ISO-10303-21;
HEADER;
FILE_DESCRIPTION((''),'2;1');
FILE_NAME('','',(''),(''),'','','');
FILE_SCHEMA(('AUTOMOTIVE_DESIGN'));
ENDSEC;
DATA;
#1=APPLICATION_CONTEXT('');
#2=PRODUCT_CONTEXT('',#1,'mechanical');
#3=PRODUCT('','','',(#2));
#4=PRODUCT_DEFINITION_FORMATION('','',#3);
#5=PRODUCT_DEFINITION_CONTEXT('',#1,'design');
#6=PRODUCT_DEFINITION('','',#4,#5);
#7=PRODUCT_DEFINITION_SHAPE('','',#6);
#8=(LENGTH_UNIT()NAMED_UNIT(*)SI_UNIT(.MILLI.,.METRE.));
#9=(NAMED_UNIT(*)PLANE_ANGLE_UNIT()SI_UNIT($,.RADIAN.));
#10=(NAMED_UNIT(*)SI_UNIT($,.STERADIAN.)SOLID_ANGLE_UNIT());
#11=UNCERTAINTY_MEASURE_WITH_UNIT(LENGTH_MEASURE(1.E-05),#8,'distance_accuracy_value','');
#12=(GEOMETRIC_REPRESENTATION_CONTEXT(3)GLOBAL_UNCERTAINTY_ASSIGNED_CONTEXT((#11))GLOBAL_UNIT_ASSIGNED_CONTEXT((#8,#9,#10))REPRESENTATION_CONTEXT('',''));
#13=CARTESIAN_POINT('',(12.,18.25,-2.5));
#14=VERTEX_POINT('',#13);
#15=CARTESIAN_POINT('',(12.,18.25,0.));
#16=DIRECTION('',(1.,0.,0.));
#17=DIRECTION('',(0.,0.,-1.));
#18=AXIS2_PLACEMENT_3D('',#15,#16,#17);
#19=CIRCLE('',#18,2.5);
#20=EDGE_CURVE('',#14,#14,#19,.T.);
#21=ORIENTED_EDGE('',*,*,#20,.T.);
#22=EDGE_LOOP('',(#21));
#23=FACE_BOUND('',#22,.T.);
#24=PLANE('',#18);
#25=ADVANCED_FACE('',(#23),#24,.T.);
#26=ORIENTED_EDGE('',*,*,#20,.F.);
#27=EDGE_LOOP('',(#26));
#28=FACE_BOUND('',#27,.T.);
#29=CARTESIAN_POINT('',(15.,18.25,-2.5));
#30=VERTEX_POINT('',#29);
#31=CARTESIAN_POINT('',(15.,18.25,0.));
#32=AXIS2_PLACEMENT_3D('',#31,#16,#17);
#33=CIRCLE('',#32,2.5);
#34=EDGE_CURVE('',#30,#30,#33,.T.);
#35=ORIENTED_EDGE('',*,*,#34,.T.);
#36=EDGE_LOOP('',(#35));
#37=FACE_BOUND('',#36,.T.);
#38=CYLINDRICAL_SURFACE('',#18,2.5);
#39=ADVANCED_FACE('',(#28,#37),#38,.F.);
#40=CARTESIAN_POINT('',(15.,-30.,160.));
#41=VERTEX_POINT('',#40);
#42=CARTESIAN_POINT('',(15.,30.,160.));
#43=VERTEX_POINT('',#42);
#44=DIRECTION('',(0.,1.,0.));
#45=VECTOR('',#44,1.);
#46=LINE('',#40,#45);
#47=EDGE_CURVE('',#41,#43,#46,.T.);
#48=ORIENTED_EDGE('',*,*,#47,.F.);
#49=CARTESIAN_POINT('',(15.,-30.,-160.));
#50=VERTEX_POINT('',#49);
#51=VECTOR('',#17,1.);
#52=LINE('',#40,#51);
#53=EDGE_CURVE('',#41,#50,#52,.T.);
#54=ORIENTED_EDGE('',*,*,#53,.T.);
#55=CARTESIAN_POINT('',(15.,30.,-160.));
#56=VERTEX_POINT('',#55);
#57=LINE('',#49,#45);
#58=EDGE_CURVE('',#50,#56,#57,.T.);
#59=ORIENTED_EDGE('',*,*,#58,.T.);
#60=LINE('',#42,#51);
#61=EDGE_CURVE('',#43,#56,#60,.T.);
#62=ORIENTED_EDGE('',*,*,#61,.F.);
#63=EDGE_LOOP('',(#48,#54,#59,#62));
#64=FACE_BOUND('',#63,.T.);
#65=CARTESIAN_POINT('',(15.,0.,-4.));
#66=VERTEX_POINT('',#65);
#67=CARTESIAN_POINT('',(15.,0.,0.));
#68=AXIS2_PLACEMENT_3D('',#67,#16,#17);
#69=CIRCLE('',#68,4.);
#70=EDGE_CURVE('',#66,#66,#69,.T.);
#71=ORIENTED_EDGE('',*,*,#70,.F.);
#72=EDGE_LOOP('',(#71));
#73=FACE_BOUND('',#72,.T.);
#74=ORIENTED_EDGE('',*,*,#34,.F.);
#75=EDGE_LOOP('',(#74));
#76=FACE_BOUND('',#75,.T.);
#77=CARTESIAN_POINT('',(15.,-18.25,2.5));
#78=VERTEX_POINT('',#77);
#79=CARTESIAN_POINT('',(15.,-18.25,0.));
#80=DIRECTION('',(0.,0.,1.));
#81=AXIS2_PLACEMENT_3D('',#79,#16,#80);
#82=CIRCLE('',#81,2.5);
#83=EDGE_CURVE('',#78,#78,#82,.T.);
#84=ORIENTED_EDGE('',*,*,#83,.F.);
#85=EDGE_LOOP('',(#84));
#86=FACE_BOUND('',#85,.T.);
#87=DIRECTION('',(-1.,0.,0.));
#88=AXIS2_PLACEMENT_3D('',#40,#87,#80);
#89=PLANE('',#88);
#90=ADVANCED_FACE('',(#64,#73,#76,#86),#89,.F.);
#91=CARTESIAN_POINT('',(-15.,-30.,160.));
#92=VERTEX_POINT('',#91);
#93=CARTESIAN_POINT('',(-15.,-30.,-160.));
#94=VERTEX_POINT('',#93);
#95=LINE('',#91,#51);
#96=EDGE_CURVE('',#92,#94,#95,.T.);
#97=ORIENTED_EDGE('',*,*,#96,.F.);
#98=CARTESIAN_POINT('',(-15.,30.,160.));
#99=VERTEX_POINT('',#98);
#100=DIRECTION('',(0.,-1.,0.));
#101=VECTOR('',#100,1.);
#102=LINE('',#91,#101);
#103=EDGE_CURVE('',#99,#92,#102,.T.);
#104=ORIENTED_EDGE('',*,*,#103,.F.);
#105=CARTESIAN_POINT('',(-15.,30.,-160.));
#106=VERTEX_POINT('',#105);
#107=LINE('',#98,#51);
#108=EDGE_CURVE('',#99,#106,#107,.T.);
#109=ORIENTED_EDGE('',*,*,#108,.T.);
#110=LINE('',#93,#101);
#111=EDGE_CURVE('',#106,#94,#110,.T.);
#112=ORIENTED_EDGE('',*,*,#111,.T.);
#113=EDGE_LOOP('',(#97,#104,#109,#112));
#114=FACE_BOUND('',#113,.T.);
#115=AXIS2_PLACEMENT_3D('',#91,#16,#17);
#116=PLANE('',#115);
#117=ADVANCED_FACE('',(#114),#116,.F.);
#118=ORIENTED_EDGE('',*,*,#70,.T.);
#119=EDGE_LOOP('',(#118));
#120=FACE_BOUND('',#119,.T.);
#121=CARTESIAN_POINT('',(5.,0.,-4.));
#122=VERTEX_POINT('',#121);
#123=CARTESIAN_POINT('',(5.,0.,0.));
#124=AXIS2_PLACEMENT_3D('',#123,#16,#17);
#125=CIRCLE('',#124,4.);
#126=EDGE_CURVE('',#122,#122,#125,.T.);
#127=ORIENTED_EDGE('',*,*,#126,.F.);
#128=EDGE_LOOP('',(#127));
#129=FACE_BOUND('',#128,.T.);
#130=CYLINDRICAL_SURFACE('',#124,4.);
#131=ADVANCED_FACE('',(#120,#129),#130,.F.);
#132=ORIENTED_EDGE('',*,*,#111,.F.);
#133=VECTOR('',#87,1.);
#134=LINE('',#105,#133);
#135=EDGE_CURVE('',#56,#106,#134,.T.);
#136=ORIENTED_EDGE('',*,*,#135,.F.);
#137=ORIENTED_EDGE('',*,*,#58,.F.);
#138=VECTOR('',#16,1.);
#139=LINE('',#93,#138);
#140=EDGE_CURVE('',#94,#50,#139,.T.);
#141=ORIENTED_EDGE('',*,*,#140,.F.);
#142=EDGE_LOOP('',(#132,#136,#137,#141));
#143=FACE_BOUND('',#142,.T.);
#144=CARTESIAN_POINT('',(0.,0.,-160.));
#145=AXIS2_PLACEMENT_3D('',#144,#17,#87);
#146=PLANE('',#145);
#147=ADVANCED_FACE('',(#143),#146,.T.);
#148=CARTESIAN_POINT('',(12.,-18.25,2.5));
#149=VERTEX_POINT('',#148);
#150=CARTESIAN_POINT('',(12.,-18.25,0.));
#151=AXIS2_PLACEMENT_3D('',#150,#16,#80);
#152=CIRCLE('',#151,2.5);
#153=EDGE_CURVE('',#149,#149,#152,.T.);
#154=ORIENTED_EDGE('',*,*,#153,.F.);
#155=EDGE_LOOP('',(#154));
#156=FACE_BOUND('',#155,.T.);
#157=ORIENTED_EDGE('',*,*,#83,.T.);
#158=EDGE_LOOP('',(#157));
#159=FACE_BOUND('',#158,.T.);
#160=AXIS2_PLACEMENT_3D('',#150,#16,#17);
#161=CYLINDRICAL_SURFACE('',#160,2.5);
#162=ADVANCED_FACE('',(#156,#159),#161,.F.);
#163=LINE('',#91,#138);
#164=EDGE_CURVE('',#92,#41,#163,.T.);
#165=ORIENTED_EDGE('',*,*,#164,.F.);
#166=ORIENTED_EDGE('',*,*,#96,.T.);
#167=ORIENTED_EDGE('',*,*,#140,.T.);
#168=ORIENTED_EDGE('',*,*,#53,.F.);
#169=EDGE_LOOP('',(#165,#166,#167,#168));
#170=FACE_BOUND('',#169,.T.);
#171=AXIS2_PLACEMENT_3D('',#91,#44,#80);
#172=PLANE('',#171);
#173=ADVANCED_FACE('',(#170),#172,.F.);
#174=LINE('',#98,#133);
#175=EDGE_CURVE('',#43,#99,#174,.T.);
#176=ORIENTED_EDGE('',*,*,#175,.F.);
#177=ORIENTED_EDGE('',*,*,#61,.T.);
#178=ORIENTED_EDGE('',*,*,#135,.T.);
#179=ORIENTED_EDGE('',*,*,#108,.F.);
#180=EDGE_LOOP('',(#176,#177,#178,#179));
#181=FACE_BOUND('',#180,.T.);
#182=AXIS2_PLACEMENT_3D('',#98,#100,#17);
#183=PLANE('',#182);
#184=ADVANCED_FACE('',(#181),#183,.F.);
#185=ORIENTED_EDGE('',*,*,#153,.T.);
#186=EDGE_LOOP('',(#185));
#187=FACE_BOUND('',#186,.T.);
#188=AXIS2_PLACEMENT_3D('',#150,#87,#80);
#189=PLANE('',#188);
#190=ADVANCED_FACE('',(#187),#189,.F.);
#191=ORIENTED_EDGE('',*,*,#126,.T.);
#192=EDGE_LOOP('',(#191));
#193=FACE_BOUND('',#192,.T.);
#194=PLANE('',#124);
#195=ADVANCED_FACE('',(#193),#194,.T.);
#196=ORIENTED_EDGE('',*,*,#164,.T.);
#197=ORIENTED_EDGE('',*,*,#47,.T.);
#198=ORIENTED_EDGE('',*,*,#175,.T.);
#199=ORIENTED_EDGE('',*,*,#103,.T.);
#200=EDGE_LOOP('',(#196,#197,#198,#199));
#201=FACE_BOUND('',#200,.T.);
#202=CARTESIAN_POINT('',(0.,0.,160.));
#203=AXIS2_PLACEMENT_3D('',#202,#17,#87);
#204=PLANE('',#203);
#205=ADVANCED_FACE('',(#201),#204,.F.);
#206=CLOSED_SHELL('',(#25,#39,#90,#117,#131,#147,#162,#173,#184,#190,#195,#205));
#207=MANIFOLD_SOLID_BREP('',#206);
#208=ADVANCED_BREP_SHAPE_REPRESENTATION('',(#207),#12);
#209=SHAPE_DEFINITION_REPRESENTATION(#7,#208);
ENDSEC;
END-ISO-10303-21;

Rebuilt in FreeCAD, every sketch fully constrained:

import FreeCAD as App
import Part
import Sketcher
from FreeCAD import Vector
Q = App.Units.Quantity


def add_polygon(sketch, points):
    """Adds a closed chain of lines whose ends are joined by coincident constraints."""
    first, n = sketch.GeometryCount, len(points)
    for a, b in zip(points, points[1:] + points[:1]):
        sketch.addGeometry(Part.LineSegment(App.Vector(*a, 0), App.Vector(*b, 0)), False)
    for i in range(n):
        sketch.addConstraint(Sketcher.Constraint("Coincident", first + i, 2, first + (i + 1) % n, 1))

doc = App.newDocument("Part")
body = doc.addObject("PartDesign::Body", "Body")

# Sketch on XY plane
sketch1 = body.newObject("Sketcher::SketchObject", "Sketch")
sketch1.AttachmentSupport = (doc.getObject("XY_Plane"), [""])
sketch1.MapMode = "FlatFace"
add_polygon(sketch1, [(-15, 30), (-15, -30), (15, -30), (15, 30)])  # lines 0-3
sketch1.addConstraint([
    Sketcher.Constraint("Vertical", 0),
    Sketcher.Constraint("Horizontal", 1),
    Sketcher.Constraint("Vertical", 2),
    Sketcher.Constraint("Horizontal", 3),
    Sketcher.Constraint("Symmetric", 0, 2, 2, 2, -1, 1),
    Sketcher.Constraint("DistanceX", 1, 1, 1, 2, Q("30 mm")),
    Sketcher.Constraint("DistanceY", 0, 2, 0, 1, Q("60 mm")),
])
pad1 = body.newObject("PartDesign::Pad", "Pad")
pad1.Profile = sketch1
pad1.Length = 320
pad1.Midplane = True

# Sketch on YZ plane
sketch2 = body.newObject("Sketcher::SketchObject", "Sketch001")
sketch2.AttachmentSupport = (doc.getObject("YZ_Plane"), [""])
sketch2.MapMode = "FlatFace"
sketch2.AttachmentOffset = App.Placement(Vector(0, 0, 15), App.Rotation())
sketch2.addGeometry([
    Part.Circle(Vector(18.25, 0, 0), Vector(0, 0, 1), 2.5),
    Part.Circle(Vector(-18.25, 0, 0), Vector(0, 0, 1), 2.5),
], False)
sketch2.addConstraint([
    Sketcher.Constraint("Equal", 0, 1),
    Sketcher.Constraint("Symmetric", 0, 3, 1, 3, -1, 1),
    Sketcher.Constraint("PointOnObject", 0, 3, -1),
    Sketcher.Constraint("Diameter", 0, Q("5 mm")),
    Sketcher.Constraint("DistanceX", 1, 3, 0, 3, Q("36.5 mm")),
])
pocket1 = body.newObject("PartDesign::Pocket", "Pocket")
pocket1.Profile = sketch2
pocket1.Length = 3

# Sketch on YZ plane
sketch3 = body.newObject("Sketcher::SketchObject", "Sketch002")
sketch3.AttachmentSupport = (doc.getObject("YZ_Plane"), [""])
sketch3.MapMode = "FlatFace"
sketch3.AttachmentOffset = App.Placement(Vector(0, 0, 15), App.Rotation())
sketch3.addGeometry(Part.Circle(Vector(0, 0, 0), Vector(0, 0, 1), 4), False)
sketch3.addConstraint([
    Sketcher.Constraint("Coincident", 0, 3, -1, 1),
    Sketcher.Constraint("Diameter", 0, Q("8 mm")),
])
pocket2 = body.newObject("PartDesign::Pocket", "Pocket001")
pocket2.Profile = sketch3
pocket2.Length = 10

doc.recompute()
